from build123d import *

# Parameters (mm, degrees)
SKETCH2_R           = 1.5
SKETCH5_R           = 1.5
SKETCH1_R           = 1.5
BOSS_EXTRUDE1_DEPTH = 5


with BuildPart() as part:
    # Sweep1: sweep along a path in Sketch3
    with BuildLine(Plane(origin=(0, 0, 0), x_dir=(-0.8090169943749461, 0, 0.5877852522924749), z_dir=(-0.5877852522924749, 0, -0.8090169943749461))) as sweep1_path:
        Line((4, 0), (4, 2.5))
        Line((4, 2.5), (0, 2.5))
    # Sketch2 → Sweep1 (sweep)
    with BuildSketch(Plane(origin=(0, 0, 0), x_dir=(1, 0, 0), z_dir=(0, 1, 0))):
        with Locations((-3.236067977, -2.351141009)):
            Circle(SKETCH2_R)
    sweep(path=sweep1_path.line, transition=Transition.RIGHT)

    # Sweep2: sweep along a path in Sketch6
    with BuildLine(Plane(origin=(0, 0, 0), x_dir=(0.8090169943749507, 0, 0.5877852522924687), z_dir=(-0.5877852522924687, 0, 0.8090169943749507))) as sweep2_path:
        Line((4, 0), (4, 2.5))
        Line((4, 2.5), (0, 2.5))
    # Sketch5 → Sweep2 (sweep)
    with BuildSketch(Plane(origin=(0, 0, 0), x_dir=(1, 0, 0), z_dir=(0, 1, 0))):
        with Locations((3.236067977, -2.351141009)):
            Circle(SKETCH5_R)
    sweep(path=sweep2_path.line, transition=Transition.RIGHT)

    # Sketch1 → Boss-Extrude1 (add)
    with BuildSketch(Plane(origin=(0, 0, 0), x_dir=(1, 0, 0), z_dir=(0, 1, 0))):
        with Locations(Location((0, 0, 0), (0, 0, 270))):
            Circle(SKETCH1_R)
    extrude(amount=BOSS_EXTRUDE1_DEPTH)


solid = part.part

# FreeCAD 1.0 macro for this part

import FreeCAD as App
import Part
import Sketcher

V = App.Vector

doc = App.newDocument("Part")
params = doc.addObject("Spreadsheet::Sheet", "Params")
for row, (alias, value) in enumerate([
    ("sketch1_diameter", "3 mm"),
    ("sketch2_width", "4 mm"),
    ("sketch2_height", "2.5 mm"),
    ("sketch3_diameter", "3 mm"),
    ("sketch4_width", "4 mm"),
    ("sketch4_height", "2.5 mm"),
    ("sketch5_diameter", "3 mm"),
    ("pad1_length", "5 mm"),
], start=1):
    params.set(f"A{row}", alias)
    params.set(f"B{row}", "=" + value)
    params.setAlias(f"B{row}", alias)

body = doc.addObject("PartDesign::Body", "Body")

# Sketch on XZ plane
sketch1 = body.newObject("Sketcher::SketchObject", "Sketch")
sketch1.AttachmentSupport = (doc.getObject("XZ_Plane"), [""])
sketch1.MapMode = "FlatFace"
sketch1.addGeometry(Part.Circle(V(-3.2, 2.4, 0), V(0, 0, 1), 1.5), False)
sketch1.addConstraint(Sketcher.Constraint("Diameter", 0, 3.0))
sketch1.addConstraint(Sketcher.Constraint("DistanceY", -1, 1, 0, 3, 2.351141))
sketch1.addConstraint(Sketcher.Constraint("DistanceX", 0, 3, -1, 1, 3.236068))
sketch1.setExpression("Constraints[0]", "Params.sketch1_diameter")

# Sketch on an angled plane
sketch2 = body.newObject("Sketcher::SketchObject", "Sketch001")
sketch2.Placement = App.Placement(V(0, 0, 0), App.Rotation(V(-0.809016994, 0, 0.587785252), V(0, 0.999999999, 0), V(-0.587785252, 0, -0.809016994), "ZXY"))
sketch2.addGeometry(Part.LineSegment(V(4, 0, 0), V(4, 2.5, 0)), False)
sketch2.addGeometry(Part.LineSegment(V(4, 2.5, 0), V(0, 2.5, 0)), False)
sketch2.addConstraint(Sketcher.Constraint("Coincident", 0, 2, 1, 1))
sketch2.addConstraint(Sketcher.Constraint("Vertical", 0))
sketch2.addConstraint(Sketcher.Constraint("Horizontal", 1))
sketch2.addConstraint(Sketcher.Constraint("PointOnObject", 0, 1, -1))
sketch2.addConstraint(Sketcher.Constraint("PointOnObject", 1, 2, -2))
sketch2.addConstraint(Sketcher.Constraint("DistanceX", 1, 2, 1, 1, 4.0))
sketch2.addConstraint(Sketcher.Constraint("DistanceY", 0, 1, 0, 2, 2.5))
sketch2.setExpression("Constraints[5]", "Params.sketch2_width")
sketch2.setExpression("Constraints[6]", "Params.sketch2_height")
doc.recompute()

additivepipe = body.newObject("PartDesign::AdditivePipe", "AdditivePipe")
additivepipe.Profile = sketch1
additivepipe.Spine = (sketch2, ["Edge1", "Edge2"])
additivepipe.Transition = "Right corner"

# Sketch on XZ plane
sketch3 = body.newObject("Sketcher::SketchObject", "Sketch002")
sketch3.AttachmentSupport = (doc.getObject("XZ_Plane"), [""])
sketch3.MapMode = "FlatFace"
sketch3.addGeometry(Part.Circle(V(3.2, 2.4, 0), V(0, 0, 1), 1.5), False)
sketch3.addConstraint(Sketcher.Constraint("Diameter", 0, 3.0))
sketch3.addConstraint(Sketcher.Constraint("DistanceY", -1, 1, 0, 3, 2.351141))
sketch3.addConstraint(Sketcher.Constraint("DistanceX", -1, 1, 0, 3, 3.236068))
sketch3.setExpression("Constraints[0]", "Params.sketch3_diameter")

# Sketch on an angled plane
sketch4 = body.newObject("Sketcher::SketchObject", "Sketch003")
sketch4.Placement = App.Placement(V(0, 0, 0), App.Rotation(V(-0.809016994, 0, -0.587785252), V(0, 0.999999999, 0), V(0.587785252, 0, -0.809016994), "ZXY"))
sketch4.addGeometry(Part.LineSegment(V(-4, 0, 0), V(-4, 2.5, 0)), False)
sketch4.addGeometry(Part.LineSegment(V(-4, 2.5, 0), V(0, 2.5, 0)), False)
sketch4.addConstraint(Sketcher.Constraint("Coincident", 0, 2, 1, 1))
sketch4.addConstraint(Sketcher.Constraint("Vertical", 0))
sketch4.addConstraint(Sketcher.Constraint("Horizontal", 1))
sketch4.addConstraint(Sketcher.Constraint("PointOnObject", 0, 1, -1))
sketch4.addConstraint(Sketcher.Constraint("PointOnObject", 1, 2, -2))
sketch4.addConstraint(Sketcher.Constraint("DistanceX", 1, 1, 1, 2, 4.0))
sketch4.addConstraint(Sketcher.Constraint("DistanceY", 0, 1, 0, 2, 2.5))
sketch4.setExpression("Constraints[5]", "Params.sketch4_width")
sketch4.setExpression("Constraints[6]", "Params.sketch4_height")
doc.recompute()

additivepipe2 = body.newObject("PartDesign::AdditivePipe", "AdditivePipe001")
additivepipe2.Profile = sketch3
additivepipe2.Spine = (sketch4, ["Edge1", "Edge2"])
additivepipe2.Transition = "Right corner"

# Sketch on XZ plane
sketch5 = body.newObject("Sketcher::SketchObject", "Sketch004")
sketch5.AttachmentSupport = (doc.getObject("XZ_Plane"), [""])
sketch5.MapMode = "FlatFace"
sketch5.addGeometry(Part.Circle(V(0, 0, 0), V(0, 0, 1), 1.5), False)
sketch5.addConstraint(Sketcher.Constraint("Coincident", 0, 3, -1, 1))
sketch5.addConstraint(Sketcher.Constraint("Diameter", 0, 3.0))
sketch5.setExpression("Constraints[1]", "Params.sketch5_diameter")
pad1 = body.newObject("PartDesign::Pad", "Pad")
pad1.Profile = sketch5
pad1.setExpression("Length", "Params.pad1_length")
pad1.Reversed = True

doc.recompute()
